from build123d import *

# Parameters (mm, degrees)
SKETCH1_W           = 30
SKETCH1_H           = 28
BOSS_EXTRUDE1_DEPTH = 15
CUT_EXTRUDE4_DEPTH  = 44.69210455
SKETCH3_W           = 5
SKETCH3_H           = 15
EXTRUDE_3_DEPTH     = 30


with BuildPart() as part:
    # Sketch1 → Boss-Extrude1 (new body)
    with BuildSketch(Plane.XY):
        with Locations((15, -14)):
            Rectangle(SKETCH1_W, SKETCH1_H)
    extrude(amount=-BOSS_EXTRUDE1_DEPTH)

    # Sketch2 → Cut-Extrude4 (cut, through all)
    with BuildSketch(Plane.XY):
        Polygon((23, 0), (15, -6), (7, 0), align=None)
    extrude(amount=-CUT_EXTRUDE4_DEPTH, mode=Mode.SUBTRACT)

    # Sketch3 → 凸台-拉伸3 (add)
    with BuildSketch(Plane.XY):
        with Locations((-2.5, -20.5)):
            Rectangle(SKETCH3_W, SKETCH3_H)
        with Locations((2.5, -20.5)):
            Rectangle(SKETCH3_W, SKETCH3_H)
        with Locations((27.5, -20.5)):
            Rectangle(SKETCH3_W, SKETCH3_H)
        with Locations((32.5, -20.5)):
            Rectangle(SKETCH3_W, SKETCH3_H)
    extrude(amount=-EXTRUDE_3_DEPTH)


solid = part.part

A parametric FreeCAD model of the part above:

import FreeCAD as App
import Part
import Sketcher


def add_polygon(sketch, points):
    """Adds a closed chain of lines whose ends are joined by coincident constraints."""
    first, n = sketch.GeometryCount, len(points)
    for a, b in zip(points, points[1:] + points[:1]):
        sketch.addGeometry(Part.LineSegment(App.Vector(*a, 0), App.Vector(*b, 0)), False)
    for i in range(n):
        sketch.addConstraint(Sketcher.Constraint("Coincident", first + i, 2, first + (i + 1) % n, 1))

doc = App.newDocument("Part")
body = doc.addObject("PartDesign::Body", "Body")

# Sketch on XY plane
sketch1 = body.newObject("Sketcher::SketchObject", "Sketch")
sketch1.AttachmentSupport = (doc.getObject("XY_Plane"), [""])
sketch1.MapMode = "FlatFace"
add_polygon(sketch1, [(0, 0), (0, -28), (30, -28), (30, 0)])  # lines 0-3
sketch1.addConstraint(Sketcher.Constraint("Vertical", 0))
sketch1.addConstraint(Sketcher.Constraint("Horizontal", 1))
sketch1.addConstraint(Sketcher.Constraint("Vertical", 2))
sketch1.addConstraint(Sketcher.Constraint("Horizontal", 3))
sketch1.addConstraint(Sketcher.Constraint("Coincident", 3, 2, -1, 1))
sketch1.addConstraint(Sketcher.Constraint("DistanceX", 1, 1, 1, 2, 30.0))
sketch1.addConstraint(Sketcher.Constraint("DistanceY", 0, 2, 0, 1, 28.0))
pad1 = body.newObject("PartDesign::Pad", "Pad")
pad1.Profile = sketch1
pad1.Length = 15
pad1.Reversed = True

# Sketch on XY plane
sketch2 = body.newObject("Sketcher::SketchObject", "Sketch001")
sketch2.AttachmentSupport = (doc.getObject("XY_Plane"), [""])
sketch2.MapMode = "FlatFace"
add_polygon(sketch2, [(15, -6), (23, 0), (7, 0)])  # lines 0-2
sketch2.addConstraint(Sketcher.Constraint("Horizontal", 1))
sketch2.addConstraint(Sketcher.Constraint("PointOnObject", 0, 2, -1))
sketch2.addConstraint(Sketcher.Constraint("Equal", 0, 2))
sketch2.addConstraint(Sketcher.Constraint("DistanceX", 1, 2, 1, 1, 16.0))
sketch2.addConstraint(Sketcher.Constraint("Distance", 0, 10.0))
sketch2.addConstraint(Sketcher.Constraint("DistanceX", -1, 1, 0, 2, 23.0))
pocket1 = body.newObject("PartDesign::Pocket", "Pocket")
pocket1.Profile = sketch2
pocket1.Type = "ThroughAll"

# Sketch on XY plane
sketch3 = body.newObject("Sketcher::SketchObject", "Sketch002")
sketch3.AttachmentSupport = (doc.getObject("XY_Plane"), [""])
sketch3.MapMode = "FlatFace"
add_polygon(sketch3, [(-5, -13), (-5, -28), (5, -28), (5, -13)])  # lines 0-3
add_polygon(sketch3, [(25, -13), (25, -28), (35, -28), (35, -13)])  # lines 4-7
sketch3.addConstraint(Sketcher.Constraint("Vertical", 0))
sketch3.addConstraint(Sketcher.Constraint("Horizontal", 1))
sketch3.addConstraint(Sketcher.Constraint("Vertical", 2))
sketch3.addConstraint(Sketcher.Constraint("Horizontal", 3))
sketch3.addConstraint(Sketcher.Constraint("Vertical", 4))
sketch3.addConstraint(Sketcher.Constraint("Horizontal", 5))
sketch3.addConstraint(Sketcher.Constraint("Vertical", 6))
sketch3.addConstraint(Sketcher.Constraint("Horizontal", 7))
sketch3.addConstraint(Sketcher.Constraint("Horizontal", 1, 2, 4, 2))
sketch3.addConstraint(Sketcher.Constraint("Horizontal", 3, 2, 6, 2))
sketch3.addConstraint(Sketcher.Constraint("Equal", 3, 5))
sketch3.addConstraint(Sketcher.Constraint("DistanceX", 1, 1, 1, 2, 10.0))
sketch3.addConstraint(Sketcher.Constraint("DistanceY", 0, 2, 0, 1, 15.0))
sketch3.addConstraint(Sketcher.Constraint("DistanceX", 0, 2, -1, 1, 5.0))
sketch3.addConstraint(Sketcher.Constraint("DistanceY", 0, 2, -1, 1, 28.0))
sketch3.addConstraint(Sketcher.Constraint("DistanceX", -1, 1, 4, 2, 25.0))
pad2 = body.newObject("PartDesign::Pad", "Pad001")
pad2.Profile = sketch3
pad2.Length = 30
pad2.Reversed = True

doc.recompute()
